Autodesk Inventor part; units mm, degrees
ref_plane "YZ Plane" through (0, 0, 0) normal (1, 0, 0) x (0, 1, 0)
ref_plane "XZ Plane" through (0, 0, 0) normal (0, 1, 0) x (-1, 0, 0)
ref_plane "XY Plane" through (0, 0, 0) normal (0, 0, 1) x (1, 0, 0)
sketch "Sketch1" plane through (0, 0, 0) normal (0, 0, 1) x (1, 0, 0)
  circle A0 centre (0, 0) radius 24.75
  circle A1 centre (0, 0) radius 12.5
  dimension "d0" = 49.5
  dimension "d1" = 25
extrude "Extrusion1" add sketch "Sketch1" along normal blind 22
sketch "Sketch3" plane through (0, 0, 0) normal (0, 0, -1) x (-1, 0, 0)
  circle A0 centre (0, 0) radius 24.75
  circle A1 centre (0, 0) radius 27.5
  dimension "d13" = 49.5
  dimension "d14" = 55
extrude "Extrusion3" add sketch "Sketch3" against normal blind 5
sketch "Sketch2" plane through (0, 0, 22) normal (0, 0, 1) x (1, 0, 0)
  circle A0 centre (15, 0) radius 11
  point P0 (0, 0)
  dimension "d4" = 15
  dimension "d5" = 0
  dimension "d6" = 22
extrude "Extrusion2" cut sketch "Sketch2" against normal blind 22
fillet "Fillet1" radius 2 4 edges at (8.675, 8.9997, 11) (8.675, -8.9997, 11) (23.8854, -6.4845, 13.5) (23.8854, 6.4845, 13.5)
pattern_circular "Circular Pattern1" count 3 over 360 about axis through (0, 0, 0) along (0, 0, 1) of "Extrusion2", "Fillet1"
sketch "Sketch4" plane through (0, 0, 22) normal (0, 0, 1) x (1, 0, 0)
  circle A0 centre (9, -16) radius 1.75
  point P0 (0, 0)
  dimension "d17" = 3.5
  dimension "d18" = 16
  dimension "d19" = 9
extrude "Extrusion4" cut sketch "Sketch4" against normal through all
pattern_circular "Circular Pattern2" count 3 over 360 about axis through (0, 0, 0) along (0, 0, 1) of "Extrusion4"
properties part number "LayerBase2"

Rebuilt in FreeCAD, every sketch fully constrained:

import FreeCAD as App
import Part
import Sketcher


def edges_at(feature, points):
    """Names of the edges that pass closest to the given points."""
    edges = feature.Shape.Edges
    near = lambda p: min(range(len(edges)), key=lambda i: edges[i].distToShape(Part.Vertex(*p))[0])
    return sorted({f"Edge{near(p) + 1}" for p in points})

doc = App.newDocument("Part")
body = doc.addObject("PartDesign::Body", "Body")

# Sketch on XY plane
sketch1 = body.newObject("Sketcher::SketchObject", "Sketch")
sketch1.AttachmentSupport = (doc.getObject("XY_Plane"), [""])
sketch1.MapMode = "FlatFace"
sketch1.addGeometry(Part.Circle(App.Vector(0, 0, 0), App.Vector(0, 0, 1), 25), False)
sketch1.addGeometry(Part.Circle(App.Vector(0, 0, 0), App.Vector(0, 0, 1), 12), False)
sketch1.addConstraint(Sketcher.Constraint("Coincident", 0, 3, -1, 1))
sketch1.addConstraint(Sketcher.Constraint("Coincident", 1, 3, -1, 1))
sketch1.addConstraint(Sketcher.Constraint("Diameter", 1, 25.0))
sketch1.addConstraint(Sketcher.Constraint("Diameter", 0, 49.5))
pad1 = body.newObject("PartDesign::Pad", "Pad")
pad1.Profile = sketch1
pad1.Length = 22

# Sketch on XY plane
sketch2 = body.newObject("Sketcher::SketchObject", "Sketch001")
sketch2.AttachmentSupport = (doc.getObject("XY_Plane"), [""])
sketch2.MapMode = "FlatFace"
sketch2.addGeometry(Part.Circle(App.Vector(0, 0, 0), App.Vector(0, 0, 1), 28), False)
sketch2.addGeometry(Part.Circle(App.Vector(0, 0, 0), App.Vector(0, 0, 1), 25), False)
sketch2.addConstraint(Sketcher.Constraint("Coincident", 0, 3, -1, 1))
sketch2.addConstraint(Sketcher.Constraint("Coincident", 1, 3, -1, 1))
sketch2.addConstraint(Sketcher.Constraint("Diameter", 0, 55.0))
sketch2.addConstraint(Sketcher.Constraint("Diameter", 1, 49.5))
pad2 = body.newObject("PartDesign::Pad", "Pad001")
pad2.Profile = sketch2
pad2.Length = 5

# Sketch on XY plane
sketch3 = body.newObject("Sketcher::SketchObject", "Sketch002")
sketch3.AttachmentSupport = (doc.getObject("XY_Plane"), [""])
sketch3.MapMode = "FlatFace"
sketch3.AttachmentOffset = App.Placement(App.Vector(0, 0, 22), App.Rotation())
sketch3.addGeometry(Part.Circle(App.Vector(15, 0, 0), App.Vector(0, 0, 1), 11), False)
sketch3.addConstraint(Sketcher.Constraint("PointOnObject", 0, 3, -1))
sketch3.addConstraint(Sketcher.Constraint("Diameter", 0, 22.0))
sketch3.addConstraint(Sketcher.Constraint("DistanceX", -1, 1, 0, 3, 15.0))
pocket1 = body.newObject("PartDesign::Pocket", "Pocket")
pocket1.Profile = sketch3
pocket1.Length = 22
doc.recompute()

fillet = body.newObject("PartDesign::Fillet", "Fillet")
fillet.Base = (pocket1, edges_at(pocket1, [
    (8.675, 9, 11),
    (8.675, -9, 11),
    (23.885, -6.484, 13.5),
    (23.885, 6.484, 13.5),
]))
fillet.Radius = 2
doc.recompute()

polarpattern = body.newObject("PartDesign::PolarPattern", "PolarPattern")
polarpattern.Originals = [pocket1, fillet]
polarpattern.Axis = (doc.getObject("Z_Axis"), [""])
polarpattern.Angle = 360
polarpattern.Occurrences = 3
body.Tip = polarpattern

# Sketch on XY plane
sketch4 = body.newObject("Sketcher::SketchObject", "Sketch003")
sketch4.AttachmentSupport = (doc.getObject("XY_Plane"), [""])
sketch4.MapMode = "FlatFace"
sketch4.AttachmentOffset = App.Placement(App.Vector(0, 0, 22), App.Rotation())
sketch4.addGeometry(Part.Circle(App.Vector(9, -16, 0), App.Vector(0, 0, 1), 1.8), False)
sketch4.addConstraint(Sketcher.Constraint("Diameter", 0, 3.5))
sketch4.addConstraint(Sketcher.Constraint("DistanceX", -1, 1, 0, 3, 9.0))
sketch4.addConstraint(Sketcher.Constraint("DistanceY", 0, 3, -1, 1, 16.0))
pocket2 = body.newObject("PartDesign::Pocket", "Pocket001")
pocket2.Profile = sketch4
pocket2.Type = "ThroughAll"
doc.recompute()

polarpattern2 = body.newObject("PartDesign::PolarPattern", "PolarPattern001")
polarpattern2.Originals = [pocket2]
polarpattern2.Axis = (doc.getObject("Z_Axis"), [""])
polarpattern2.Angle = 360
polarpattern2.Occurrences = 3
body.Tip = polarpattern2

doc.recompute()
